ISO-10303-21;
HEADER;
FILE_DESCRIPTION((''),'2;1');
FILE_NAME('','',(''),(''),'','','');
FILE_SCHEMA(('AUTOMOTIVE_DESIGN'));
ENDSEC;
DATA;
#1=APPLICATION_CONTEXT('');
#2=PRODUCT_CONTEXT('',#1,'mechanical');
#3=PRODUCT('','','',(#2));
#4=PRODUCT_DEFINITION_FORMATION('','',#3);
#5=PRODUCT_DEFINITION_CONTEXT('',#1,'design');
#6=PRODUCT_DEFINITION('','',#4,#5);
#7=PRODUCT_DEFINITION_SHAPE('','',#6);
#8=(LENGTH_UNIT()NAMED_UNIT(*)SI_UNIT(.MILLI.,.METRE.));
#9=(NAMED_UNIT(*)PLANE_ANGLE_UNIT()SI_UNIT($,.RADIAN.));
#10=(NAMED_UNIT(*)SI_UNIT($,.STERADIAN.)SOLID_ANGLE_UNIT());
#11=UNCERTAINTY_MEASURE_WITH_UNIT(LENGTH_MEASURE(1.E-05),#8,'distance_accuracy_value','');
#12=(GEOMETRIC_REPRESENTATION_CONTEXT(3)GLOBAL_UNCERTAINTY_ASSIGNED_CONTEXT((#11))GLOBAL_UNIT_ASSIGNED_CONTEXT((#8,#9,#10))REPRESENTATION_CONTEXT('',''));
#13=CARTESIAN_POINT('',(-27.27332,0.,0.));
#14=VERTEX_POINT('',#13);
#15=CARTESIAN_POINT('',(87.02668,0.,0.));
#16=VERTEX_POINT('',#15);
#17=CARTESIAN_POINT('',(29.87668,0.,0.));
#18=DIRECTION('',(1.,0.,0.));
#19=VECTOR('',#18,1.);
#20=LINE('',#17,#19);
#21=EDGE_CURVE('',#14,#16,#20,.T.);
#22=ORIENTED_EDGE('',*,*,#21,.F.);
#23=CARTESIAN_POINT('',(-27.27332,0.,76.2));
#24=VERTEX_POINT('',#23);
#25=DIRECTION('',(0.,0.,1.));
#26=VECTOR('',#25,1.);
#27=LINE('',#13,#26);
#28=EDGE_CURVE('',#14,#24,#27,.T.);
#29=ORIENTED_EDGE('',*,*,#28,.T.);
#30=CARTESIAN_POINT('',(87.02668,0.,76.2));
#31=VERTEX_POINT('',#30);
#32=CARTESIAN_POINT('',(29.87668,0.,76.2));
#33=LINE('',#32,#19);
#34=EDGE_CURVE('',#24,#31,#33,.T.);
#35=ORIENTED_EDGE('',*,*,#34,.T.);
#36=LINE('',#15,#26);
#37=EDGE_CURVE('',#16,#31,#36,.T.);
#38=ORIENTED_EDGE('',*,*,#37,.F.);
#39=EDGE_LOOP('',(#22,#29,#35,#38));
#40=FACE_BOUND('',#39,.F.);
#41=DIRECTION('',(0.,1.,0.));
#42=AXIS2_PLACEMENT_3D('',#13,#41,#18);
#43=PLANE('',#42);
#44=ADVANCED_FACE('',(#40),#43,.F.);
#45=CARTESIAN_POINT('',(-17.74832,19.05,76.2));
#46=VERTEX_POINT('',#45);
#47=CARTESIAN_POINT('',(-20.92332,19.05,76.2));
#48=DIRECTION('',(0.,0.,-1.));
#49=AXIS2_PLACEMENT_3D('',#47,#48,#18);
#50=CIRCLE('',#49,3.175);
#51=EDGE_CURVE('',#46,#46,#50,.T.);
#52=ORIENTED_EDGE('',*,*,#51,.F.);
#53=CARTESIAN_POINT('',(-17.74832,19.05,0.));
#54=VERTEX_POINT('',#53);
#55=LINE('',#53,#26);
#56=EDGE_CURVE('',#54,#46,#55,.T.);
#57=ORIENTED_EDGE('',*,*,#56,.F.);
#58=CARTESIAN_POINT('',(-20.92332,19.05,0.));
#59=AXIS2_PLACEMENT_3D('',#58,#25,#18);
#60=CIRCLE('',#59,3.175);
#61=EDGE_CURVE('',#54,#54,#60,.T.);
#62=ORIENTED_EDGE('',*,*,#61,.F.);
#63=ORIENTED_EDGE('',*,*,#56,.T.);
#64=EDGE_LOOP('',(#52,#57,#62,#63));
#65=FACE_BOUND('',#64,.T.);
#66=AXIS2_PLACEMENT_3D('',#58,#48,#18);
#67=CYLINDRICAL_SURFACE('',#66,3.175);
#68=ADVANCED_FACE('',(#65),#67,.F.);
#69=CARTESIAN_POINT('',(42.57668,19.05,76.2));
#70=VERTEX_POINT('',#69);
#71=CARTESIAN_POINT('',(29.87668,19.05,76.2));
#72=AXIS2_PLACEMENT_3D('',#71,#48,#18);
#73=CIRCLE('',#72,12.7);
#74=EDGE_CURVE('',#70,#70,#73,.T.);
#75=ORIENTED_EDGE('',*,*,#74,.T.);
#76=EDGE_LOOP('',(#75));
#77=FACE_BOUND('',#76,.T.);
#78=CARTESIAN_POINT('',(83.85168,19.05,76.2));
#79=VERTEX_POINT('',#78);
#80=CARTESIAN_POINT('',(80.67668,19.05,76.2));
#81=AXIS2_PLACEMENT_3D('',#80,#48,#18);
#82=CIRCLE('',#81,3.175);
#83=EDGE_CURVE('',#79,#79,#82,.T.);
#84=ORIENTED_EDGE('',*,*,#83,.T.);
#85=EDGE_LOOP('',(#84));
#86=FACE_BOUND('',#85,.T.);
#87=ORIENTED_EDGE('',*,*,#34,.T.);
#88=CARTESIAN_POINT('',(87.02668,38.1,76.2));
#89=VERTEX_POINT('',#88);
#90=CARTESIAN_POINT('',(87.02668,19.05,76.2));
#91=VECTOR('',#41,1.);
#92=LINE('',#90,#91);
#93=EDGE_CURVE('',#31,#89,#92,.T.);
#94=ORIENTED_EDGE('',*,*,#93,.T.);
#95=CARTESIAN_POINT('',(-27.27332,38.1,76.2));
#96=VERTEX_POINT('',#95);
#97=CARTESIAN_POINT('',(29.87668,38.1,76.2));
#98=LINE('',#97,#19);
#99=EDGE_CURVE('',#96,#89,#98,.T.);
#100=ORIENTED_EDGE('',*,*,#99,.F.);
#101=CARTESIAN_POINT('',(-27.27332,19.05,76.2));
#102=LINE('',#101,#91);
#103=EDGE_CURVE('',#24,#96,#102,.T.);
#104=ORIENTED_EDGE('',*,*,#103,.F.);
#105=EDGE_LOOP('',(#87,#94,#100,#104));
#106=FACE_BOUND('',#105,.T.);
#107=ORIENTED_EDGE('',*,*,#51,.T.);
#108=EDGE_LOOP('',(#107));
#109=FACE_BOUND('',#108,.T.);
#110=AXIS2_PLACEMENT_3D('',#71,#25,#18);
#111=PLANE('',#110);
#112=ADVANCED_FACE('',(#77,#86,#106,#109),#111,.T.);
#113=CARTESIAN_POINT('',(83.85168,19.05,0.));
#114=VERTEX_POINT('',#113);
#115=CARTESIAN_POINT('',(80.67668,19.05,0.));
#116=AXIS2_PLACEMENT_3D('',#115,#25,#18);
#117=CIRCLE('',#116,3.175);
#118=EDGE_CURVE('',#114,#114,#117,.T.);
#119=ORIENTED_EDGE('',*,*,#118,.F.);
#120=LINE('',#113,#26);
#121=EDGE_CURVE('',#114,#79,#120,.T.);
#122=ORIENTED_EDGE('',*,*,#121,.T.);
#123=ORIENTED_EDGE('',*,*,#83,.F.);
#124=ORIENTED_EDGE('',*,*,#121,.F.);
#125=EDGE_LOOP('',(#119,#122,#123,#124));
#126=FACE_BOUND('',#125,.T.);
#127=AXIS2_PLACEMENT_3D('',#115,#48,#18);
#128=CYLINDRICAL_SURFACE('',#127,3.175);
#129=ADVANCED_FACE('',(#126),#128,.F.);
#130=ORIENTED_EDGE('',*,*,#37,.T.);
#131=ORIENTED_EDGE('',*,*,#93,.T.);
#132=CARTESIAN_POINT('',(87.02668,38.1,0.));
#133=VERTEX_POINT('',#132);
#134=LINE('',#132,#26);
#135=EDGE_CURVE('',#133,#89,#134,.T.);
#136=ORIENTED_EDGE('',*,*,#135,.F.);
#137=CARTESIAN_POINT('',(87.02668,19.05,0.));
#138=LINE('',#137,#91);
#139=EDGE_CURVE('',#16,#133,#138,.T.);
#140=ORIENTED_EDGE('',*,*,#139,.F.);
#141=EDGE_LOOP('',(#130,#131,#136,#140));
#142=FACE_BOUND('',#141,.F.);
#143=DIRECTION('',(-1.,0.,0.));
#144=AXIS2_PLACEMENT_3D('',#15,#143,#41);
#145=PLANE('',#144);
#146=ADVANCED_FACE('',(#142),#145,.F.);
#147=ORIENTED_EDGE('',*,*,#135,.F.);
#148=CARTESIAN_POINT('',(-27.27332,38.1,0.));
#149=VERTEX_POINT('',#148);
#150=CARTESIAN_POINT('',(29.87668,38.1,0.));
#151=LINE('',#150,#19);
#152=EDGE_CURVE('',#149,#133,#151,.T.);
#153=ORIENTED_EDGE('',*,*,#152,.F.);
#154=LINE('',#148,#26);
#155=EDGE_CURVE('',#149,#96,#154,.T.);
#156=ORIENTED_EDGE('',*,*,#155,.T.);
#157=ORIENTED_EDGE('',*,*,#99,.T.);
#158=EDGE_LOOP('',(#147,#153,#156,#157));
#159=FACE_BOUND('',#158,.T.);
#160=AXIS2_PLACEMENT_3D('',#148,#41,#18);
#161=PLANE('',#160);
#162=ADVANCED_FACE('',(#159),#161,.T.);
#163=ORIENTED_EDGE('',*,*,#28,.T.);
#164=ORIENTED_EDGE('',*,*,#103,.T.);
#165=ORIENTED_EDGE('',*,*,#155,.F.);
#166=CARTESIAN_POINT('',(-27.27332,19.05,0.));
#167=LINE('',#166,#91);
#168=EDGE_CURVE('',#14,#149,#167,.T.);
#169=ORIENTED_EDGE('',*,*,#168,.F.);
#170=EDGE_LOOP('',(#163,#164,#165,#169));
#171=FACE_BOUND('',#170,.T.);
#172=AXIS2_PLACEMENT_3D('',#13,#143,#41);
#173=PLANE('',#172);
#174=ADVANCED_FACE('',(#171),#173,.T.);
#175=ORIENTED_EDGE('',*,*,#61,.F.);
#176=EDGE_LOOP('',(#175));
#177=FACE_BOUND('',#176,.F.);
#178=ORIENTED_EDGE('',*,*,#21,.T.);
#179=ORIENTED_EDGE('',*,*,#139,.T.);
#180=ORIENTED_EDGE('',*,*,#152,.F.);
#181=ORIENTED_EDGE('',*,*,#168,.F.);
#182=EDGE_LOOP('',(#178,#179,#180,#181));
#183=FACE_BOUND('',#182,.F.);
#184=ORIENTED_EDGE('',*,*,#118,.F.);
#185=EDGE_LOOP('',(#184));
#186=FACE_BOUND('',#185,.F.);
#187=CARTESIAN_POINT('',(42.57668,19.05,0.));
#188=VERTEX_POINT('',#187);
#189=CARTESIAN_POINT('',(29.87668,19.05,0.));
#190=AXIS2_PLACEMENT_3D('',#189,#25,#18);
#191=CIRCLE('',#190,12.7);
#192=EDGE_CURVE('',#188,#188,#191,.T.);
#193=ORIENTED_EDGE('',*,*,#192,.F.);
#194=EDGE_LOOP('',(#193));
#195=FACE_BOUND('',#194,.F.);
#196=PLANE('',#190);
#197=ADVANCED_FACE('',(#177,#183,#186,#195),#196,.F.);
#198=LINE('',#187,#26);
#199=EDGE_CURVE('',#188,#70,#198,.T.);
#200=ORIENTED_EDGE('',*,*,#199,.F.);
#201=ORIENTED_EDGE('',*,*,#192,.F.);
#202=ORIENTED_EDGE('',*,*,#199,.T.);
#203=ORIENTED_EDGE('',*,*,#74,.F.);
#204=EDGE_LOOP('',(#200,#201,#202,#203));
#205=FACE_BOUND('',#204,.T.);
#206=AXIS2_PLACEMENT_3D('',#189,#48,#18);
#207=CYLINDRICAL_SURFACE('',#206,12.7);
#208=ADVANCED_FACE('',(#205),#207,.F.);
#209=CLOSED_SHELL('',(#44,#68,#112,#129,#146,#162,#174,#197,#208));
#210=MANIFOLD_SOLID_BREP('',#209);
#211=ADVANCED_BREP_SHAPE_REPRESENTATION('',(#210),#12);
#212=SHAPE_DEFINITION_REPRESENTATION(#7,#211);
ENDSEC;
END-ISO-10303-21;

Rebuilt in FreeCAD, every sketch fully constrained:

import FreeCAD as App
import Part
import Sketcher
Q = App.Units.Quantity


def add_polygon(sketch, points):
    """Adds a closed chain of lines whose ends are joined by coincident constraints."""
    first, n = sketch.GeometryCount, len(points)
    for a, b in zip(points, points[1:] + points[:1]):
        sketch.addGeometry(Part.LineSegment(App.Vector(*a, 0), App.Vector(*b, 0)), False)
    for i in range(n):
        sketch.addConstraint(Sketcher.Constraint("Coincident", first + i, 2, first + (i + 1) % n, 1))

doc = App.newDocument("Part")
body = doc.addObject("PartDesign::Body", "Body")

# Sketch on XY plane
sketch1 = body.newObject("Sketcher::SketchObject", "Sketch")
sketch1.AttachmentSupport = (doc.getObject("XY_Plane"), [""])
sketch1.MapMode = "FlatFace"
add_polygon(sketch1, [(-27.27332, 38.1), (-27.27332, 0), (87.02668, 0), (87.02668, 38.1)])  # lines 0-3
sketch1.addConstraint(Sketcher.Constraint("Vertical", 0))
sketch1.addConstraint(Sketcher.Constraint("Horizontal", 1))
sketch1.addConstraint(Sketcher.Constraint("Vertical", 2))
sketch1.addConstraint(Sketcher.Constraint("Horizontal", 3))
sketch1.addConstraint(Sketcher.Constraint("PointOnObject", 0, 2, -1))
sketch1.addConstraint(Sketcher.Constraint("DistanceX", 1, 1, 1, 2, Q("4.5 in")))
sketch1.addConstraint(Sketcher.Constraint("DistanceY", 0, 2, 0, 1, Q("1.5 in")))
sketch1.addConstraint(Sketcher.Constraint("DistanceX", 0, 2, -1, 1, Q("27.27332 mm")))
pad1 = body.newObject("PartDesign::Pad", "Pad")
pad1.Profile = sketch1
pad1.Length = Q("3 in")

# Sketch on XY plane
sketch2 = body.newObject("Sketcher::SketchObject", "Sketch001")
sketch2.AttachmentSupport = (doc.getObject("XY_Plane"), [""])
sketch2.MapMode = "FlatFace"
sketch2.addGeometry(Part.Circle(App.Vector(29.87668, 19.05, 0), App.Vector(0, 0, 1), 12.7), False)
sketch2.addConstraint(Sketcher.Constraint("Diameter", 0, Q("1 in")))
sketch2.addConstraint(Sketcher.Constraint("DistanceY", -1, 1, 0, 3, Q("0.75 in")))
sketch2.addConstraint(Sketcher.Constraint("DistanceX", -1, 1, 0, 3, Q("29.87668 mm")))
pocket1 = body.newObject("PartDesign::Pocket", "Pocket")
pocket1.Profile = sketch2
pocket1.Length = Q("3.37 in")
pocket1.Reversed = True

# Sketch on XY plane
sketch3 = body.newObject("Sketcher::SketchObject", "Sketch002")
sketch3.AttachmentSupport = (doc.getObject("XY_Plane"), [""])
sketch3.MapMode = "FlatFace"
sketch3.addGeometry(Part.Circle(App.Vector(-20.92332, 19.05, 0), App.Vector(0, 0, 1), 3.175), False)
sketch3.addConstraint(Sketcher.Constraint("Diameter", 0, Q("0.25 in")))
sketch3.addConstraint(Sketcher.Constraint("DistanceY", -1, 1, 0, 3, Q("0.75 in")))
sketch3.addConstraint(Sketcher.Constraint("DistanceX", 0, 3, -1, 1, Q("20.92332 mm")))
pocket2 = body.newObject("PartDesign::Pocket", "Pocket001")
pocket2.Profile = sketch3
pocket2.Length = Q("3.57 in")
pocket2.Reversed = True

# Sketch on XY plane
sketch4 = body.newObject("Sketcher::SketchObject", "Sketch003")
sketch4.AttachmentSupport = (doc.getObject("XY_Plane"), [""])
sketch4.MapMode = "FlatFace"
sketch4.addGeometry(Part.Circle(App.Vector(80.67668, 19.05, 0), App.Vector(0, 0, 1), 3.175), False)
sketch4.addConstraint(Sketcher.Constraint("Diameter", 0, Q("0.25 in")))
sketch4.addConstraint(Sketcher.Constraint("DistanceY", -1, 1, 0, 3, Q("0.75 in")))
sketch4.addConstraint(Sketcher.Constraint("DistanceX", -1, 1, 0, 3, Q("80.67668 mm")))
pocket3 = body.newObject("PartDesign::Pocket", "Pocket002")
pocket3.Profile = sketch4
pocket3.Length = Q("3.57 in")
pocket3.Reversed = True

doc.recompute()
